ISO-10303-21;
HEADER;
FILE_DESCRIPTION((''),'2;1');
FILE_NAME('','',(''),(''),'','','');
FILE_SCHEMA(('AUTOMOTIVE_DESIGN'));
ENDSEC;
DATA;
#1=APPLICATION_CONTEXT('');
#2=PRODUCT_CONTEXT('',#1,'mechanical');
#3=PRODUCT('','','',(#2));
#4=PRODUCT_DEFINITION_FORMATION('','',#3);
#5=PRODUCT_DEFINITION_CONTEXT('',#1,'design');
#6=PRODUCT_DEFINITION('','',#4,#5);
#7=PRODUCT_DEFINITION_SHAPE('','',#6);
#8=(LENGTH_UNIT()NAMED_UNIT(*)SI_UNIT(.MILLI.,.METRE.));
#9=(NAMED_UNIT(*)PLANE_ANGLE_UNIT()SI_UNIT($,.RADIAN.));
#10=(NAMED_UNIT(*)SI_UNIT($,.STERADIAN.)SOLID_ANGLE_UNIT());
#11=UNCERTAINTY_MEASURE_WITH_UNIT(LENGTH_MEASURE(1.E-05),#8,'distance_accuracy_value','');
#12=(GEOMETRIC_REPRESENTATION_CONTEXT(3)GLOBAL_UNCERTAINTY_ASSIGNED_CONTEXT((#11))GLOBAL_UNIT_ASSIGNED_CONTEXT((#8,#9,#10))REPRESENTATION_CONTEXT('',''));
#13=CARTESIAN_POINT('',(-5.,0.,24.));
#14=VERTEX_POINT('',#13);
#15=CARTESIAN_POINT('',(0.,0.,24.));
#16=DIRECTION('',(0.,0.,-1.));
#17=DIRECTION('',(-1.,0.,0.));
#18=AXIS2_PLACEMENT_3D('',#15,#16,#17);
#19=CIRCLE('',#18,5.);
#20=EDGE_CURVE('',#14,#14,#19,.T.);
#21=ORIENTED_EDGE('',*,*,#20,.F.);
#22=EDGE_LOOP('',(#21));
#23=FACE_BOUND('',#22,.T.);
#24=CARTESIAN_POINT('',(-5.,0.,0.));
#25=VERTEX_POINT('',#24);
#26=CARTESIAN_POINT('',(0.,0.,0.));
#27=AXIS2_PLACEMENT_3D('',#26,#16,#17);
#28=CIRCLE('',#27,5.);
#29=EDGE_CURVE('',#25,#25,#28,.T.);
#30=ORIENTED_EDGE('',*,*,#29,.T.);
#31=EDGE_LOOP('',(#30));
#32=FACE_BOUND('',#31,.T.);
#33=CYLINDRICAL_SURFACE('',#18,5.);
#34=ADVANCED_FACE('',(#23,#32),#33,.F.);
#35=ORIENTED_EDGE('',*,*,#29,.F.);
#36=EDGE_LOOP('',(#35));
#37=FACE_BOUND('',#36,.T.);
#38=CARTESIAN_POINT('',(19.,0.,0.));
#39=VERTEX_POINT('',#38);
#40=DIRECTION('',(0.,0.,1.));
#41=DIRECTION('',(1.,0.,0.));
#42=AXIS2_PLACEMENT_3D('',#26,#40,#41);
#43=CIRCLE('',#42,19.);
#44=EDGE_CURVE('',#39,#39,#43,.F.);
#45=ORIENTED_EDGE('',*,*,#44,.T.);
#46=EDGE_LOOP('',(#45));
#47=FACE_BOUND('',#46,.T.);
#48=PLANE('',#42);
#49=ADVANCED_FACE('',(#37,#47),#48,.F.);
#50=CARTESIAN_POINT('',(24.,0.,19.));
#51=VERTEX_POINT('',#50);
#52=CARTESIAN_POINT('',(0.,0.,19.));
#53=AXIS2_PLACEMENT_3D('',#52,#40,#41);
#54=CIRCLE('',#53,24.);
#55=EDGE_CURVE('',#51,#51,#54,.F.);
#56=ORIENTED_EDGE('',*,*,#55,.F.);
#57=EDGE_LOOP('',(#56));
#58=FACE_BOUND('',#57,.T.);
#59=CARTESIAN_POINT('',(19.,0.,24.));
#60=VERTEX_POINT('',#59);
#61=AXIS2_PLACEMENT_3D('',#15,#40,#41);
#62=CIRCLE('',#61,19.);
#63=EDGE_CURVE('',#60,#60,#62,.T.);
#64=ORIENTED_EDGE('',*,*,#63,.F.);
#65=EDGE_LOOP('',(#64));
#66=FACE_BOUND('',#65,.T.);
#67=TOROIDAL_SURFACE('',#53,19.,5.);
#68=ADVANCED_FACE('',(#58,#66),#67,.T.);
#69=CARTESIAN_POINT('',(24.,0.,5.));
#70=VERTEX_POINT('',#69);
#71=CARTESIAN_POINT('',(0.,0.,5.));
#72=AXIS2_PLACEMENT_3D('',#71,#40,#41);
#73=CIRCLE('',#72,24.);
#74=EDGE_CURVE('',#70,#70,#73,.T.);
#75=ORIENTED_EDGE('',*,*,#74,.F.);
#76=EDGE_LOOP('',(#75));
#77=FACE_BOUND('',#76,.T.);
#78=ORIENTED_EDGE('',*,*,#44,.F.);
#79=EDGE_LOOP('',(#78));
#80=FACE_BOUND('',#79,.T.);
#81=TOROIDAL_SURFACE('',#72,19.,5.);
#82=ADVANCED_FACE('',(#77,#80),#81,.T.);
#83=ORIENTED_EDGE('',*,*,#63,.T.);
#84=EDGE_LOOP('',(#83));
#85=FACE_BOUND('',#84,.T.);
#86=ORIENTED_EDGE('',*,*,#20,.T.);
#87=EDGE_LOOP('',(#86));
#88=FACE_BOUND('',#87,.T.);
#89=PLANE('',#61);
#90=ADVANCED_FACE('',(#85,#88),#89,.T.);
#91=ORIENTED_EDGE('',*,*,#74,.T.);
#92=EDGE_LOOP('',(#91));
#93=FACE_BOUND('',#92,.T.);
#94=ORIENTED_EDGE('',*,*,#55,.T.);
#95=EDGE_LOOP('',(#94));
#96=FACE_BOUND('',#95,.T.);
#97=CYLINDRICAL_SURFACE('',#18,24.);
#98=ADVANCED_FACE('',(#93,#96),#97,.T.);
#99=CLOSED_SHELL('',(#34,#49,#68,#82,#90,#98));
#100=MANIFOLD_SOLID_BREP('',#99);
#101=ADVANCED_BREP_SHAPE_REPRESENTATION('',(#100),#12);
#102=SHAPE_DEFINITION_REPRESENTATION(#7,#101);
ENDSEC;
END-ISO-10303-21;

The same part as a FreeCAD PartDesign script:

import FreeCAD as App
import Part
import Sketcher
from FreeCAD import Vector


def edges_at(feature, points):
    """Names of the edges that pass closest to the given points."""
    edges = feature.Shape.Edges
    near = lambda p: min(range(len(edges)), key=lambda i: edges[i].distToShape(Part.Vertex(*p))[0])
    return sorted({f"Edge{near(p) + 1}" for p in points})

doc = App.newDocument("Part")
body = doc.addObject("PartDesign::Body", "Body")

# Sketch on XY plane
sketch1 = body.newObject("Sketcher::SketchObject", "Sketch")
sketch1.AttachmentSupport = (doc.getObject("XY_Plane"), [""])
sketch1.MapMode = "FlatFace"
sketch1.addGeometry(Part.Circle(Vector(0, 0, 0), Vector(0, 0, 1), 24), False)
sketch1.addConstraint(Sketcher.Constraint("Coincident", 0, 3, -1, 1))
sketch1.addConstraint(Sketcher.Constraint("Diameter", 0, 48.0))
pad1 = body.newObject("PartDesign::Pad", "Pad")
pad1.Profile = sketch1
pad1.Length = 24
doc.recompute()

fillet = body.newObject("PartDesign::Fillet", "Fillet")
fillet.Base = (pad1, edges_at(pad1, [(-24, 0, 0), (-24, 0, 24)]))
fillet.Radius = 5

# Sketch on XY plane
sketch2 = body.newObject("Sketcher::SketchObject", "Sketch001")
sketch2.AttachmentSupport = (doc.getObject("XY_Plane"), [""])
sketch2.MapMode = "FlatFace"
sketch2.addGeometry(Part.Circle(Vector(0, 0, 0), Vector(0, 0, 1), 5), False)
sketch2.addConstraint(Sketcher.Constraint("Coincident", 0, 3, -1, 1))
sketch2.addConstraint(Sketcher.Constraint("Diameter", 0, 10.0))
pocket1 = body.newObject("PartDesign::Pocket", "Pocket")
pocket1.Profile = sketch2
pocket1.Type = "ThroughAll"
pocket1.Reversed = True

doc.recompute()
